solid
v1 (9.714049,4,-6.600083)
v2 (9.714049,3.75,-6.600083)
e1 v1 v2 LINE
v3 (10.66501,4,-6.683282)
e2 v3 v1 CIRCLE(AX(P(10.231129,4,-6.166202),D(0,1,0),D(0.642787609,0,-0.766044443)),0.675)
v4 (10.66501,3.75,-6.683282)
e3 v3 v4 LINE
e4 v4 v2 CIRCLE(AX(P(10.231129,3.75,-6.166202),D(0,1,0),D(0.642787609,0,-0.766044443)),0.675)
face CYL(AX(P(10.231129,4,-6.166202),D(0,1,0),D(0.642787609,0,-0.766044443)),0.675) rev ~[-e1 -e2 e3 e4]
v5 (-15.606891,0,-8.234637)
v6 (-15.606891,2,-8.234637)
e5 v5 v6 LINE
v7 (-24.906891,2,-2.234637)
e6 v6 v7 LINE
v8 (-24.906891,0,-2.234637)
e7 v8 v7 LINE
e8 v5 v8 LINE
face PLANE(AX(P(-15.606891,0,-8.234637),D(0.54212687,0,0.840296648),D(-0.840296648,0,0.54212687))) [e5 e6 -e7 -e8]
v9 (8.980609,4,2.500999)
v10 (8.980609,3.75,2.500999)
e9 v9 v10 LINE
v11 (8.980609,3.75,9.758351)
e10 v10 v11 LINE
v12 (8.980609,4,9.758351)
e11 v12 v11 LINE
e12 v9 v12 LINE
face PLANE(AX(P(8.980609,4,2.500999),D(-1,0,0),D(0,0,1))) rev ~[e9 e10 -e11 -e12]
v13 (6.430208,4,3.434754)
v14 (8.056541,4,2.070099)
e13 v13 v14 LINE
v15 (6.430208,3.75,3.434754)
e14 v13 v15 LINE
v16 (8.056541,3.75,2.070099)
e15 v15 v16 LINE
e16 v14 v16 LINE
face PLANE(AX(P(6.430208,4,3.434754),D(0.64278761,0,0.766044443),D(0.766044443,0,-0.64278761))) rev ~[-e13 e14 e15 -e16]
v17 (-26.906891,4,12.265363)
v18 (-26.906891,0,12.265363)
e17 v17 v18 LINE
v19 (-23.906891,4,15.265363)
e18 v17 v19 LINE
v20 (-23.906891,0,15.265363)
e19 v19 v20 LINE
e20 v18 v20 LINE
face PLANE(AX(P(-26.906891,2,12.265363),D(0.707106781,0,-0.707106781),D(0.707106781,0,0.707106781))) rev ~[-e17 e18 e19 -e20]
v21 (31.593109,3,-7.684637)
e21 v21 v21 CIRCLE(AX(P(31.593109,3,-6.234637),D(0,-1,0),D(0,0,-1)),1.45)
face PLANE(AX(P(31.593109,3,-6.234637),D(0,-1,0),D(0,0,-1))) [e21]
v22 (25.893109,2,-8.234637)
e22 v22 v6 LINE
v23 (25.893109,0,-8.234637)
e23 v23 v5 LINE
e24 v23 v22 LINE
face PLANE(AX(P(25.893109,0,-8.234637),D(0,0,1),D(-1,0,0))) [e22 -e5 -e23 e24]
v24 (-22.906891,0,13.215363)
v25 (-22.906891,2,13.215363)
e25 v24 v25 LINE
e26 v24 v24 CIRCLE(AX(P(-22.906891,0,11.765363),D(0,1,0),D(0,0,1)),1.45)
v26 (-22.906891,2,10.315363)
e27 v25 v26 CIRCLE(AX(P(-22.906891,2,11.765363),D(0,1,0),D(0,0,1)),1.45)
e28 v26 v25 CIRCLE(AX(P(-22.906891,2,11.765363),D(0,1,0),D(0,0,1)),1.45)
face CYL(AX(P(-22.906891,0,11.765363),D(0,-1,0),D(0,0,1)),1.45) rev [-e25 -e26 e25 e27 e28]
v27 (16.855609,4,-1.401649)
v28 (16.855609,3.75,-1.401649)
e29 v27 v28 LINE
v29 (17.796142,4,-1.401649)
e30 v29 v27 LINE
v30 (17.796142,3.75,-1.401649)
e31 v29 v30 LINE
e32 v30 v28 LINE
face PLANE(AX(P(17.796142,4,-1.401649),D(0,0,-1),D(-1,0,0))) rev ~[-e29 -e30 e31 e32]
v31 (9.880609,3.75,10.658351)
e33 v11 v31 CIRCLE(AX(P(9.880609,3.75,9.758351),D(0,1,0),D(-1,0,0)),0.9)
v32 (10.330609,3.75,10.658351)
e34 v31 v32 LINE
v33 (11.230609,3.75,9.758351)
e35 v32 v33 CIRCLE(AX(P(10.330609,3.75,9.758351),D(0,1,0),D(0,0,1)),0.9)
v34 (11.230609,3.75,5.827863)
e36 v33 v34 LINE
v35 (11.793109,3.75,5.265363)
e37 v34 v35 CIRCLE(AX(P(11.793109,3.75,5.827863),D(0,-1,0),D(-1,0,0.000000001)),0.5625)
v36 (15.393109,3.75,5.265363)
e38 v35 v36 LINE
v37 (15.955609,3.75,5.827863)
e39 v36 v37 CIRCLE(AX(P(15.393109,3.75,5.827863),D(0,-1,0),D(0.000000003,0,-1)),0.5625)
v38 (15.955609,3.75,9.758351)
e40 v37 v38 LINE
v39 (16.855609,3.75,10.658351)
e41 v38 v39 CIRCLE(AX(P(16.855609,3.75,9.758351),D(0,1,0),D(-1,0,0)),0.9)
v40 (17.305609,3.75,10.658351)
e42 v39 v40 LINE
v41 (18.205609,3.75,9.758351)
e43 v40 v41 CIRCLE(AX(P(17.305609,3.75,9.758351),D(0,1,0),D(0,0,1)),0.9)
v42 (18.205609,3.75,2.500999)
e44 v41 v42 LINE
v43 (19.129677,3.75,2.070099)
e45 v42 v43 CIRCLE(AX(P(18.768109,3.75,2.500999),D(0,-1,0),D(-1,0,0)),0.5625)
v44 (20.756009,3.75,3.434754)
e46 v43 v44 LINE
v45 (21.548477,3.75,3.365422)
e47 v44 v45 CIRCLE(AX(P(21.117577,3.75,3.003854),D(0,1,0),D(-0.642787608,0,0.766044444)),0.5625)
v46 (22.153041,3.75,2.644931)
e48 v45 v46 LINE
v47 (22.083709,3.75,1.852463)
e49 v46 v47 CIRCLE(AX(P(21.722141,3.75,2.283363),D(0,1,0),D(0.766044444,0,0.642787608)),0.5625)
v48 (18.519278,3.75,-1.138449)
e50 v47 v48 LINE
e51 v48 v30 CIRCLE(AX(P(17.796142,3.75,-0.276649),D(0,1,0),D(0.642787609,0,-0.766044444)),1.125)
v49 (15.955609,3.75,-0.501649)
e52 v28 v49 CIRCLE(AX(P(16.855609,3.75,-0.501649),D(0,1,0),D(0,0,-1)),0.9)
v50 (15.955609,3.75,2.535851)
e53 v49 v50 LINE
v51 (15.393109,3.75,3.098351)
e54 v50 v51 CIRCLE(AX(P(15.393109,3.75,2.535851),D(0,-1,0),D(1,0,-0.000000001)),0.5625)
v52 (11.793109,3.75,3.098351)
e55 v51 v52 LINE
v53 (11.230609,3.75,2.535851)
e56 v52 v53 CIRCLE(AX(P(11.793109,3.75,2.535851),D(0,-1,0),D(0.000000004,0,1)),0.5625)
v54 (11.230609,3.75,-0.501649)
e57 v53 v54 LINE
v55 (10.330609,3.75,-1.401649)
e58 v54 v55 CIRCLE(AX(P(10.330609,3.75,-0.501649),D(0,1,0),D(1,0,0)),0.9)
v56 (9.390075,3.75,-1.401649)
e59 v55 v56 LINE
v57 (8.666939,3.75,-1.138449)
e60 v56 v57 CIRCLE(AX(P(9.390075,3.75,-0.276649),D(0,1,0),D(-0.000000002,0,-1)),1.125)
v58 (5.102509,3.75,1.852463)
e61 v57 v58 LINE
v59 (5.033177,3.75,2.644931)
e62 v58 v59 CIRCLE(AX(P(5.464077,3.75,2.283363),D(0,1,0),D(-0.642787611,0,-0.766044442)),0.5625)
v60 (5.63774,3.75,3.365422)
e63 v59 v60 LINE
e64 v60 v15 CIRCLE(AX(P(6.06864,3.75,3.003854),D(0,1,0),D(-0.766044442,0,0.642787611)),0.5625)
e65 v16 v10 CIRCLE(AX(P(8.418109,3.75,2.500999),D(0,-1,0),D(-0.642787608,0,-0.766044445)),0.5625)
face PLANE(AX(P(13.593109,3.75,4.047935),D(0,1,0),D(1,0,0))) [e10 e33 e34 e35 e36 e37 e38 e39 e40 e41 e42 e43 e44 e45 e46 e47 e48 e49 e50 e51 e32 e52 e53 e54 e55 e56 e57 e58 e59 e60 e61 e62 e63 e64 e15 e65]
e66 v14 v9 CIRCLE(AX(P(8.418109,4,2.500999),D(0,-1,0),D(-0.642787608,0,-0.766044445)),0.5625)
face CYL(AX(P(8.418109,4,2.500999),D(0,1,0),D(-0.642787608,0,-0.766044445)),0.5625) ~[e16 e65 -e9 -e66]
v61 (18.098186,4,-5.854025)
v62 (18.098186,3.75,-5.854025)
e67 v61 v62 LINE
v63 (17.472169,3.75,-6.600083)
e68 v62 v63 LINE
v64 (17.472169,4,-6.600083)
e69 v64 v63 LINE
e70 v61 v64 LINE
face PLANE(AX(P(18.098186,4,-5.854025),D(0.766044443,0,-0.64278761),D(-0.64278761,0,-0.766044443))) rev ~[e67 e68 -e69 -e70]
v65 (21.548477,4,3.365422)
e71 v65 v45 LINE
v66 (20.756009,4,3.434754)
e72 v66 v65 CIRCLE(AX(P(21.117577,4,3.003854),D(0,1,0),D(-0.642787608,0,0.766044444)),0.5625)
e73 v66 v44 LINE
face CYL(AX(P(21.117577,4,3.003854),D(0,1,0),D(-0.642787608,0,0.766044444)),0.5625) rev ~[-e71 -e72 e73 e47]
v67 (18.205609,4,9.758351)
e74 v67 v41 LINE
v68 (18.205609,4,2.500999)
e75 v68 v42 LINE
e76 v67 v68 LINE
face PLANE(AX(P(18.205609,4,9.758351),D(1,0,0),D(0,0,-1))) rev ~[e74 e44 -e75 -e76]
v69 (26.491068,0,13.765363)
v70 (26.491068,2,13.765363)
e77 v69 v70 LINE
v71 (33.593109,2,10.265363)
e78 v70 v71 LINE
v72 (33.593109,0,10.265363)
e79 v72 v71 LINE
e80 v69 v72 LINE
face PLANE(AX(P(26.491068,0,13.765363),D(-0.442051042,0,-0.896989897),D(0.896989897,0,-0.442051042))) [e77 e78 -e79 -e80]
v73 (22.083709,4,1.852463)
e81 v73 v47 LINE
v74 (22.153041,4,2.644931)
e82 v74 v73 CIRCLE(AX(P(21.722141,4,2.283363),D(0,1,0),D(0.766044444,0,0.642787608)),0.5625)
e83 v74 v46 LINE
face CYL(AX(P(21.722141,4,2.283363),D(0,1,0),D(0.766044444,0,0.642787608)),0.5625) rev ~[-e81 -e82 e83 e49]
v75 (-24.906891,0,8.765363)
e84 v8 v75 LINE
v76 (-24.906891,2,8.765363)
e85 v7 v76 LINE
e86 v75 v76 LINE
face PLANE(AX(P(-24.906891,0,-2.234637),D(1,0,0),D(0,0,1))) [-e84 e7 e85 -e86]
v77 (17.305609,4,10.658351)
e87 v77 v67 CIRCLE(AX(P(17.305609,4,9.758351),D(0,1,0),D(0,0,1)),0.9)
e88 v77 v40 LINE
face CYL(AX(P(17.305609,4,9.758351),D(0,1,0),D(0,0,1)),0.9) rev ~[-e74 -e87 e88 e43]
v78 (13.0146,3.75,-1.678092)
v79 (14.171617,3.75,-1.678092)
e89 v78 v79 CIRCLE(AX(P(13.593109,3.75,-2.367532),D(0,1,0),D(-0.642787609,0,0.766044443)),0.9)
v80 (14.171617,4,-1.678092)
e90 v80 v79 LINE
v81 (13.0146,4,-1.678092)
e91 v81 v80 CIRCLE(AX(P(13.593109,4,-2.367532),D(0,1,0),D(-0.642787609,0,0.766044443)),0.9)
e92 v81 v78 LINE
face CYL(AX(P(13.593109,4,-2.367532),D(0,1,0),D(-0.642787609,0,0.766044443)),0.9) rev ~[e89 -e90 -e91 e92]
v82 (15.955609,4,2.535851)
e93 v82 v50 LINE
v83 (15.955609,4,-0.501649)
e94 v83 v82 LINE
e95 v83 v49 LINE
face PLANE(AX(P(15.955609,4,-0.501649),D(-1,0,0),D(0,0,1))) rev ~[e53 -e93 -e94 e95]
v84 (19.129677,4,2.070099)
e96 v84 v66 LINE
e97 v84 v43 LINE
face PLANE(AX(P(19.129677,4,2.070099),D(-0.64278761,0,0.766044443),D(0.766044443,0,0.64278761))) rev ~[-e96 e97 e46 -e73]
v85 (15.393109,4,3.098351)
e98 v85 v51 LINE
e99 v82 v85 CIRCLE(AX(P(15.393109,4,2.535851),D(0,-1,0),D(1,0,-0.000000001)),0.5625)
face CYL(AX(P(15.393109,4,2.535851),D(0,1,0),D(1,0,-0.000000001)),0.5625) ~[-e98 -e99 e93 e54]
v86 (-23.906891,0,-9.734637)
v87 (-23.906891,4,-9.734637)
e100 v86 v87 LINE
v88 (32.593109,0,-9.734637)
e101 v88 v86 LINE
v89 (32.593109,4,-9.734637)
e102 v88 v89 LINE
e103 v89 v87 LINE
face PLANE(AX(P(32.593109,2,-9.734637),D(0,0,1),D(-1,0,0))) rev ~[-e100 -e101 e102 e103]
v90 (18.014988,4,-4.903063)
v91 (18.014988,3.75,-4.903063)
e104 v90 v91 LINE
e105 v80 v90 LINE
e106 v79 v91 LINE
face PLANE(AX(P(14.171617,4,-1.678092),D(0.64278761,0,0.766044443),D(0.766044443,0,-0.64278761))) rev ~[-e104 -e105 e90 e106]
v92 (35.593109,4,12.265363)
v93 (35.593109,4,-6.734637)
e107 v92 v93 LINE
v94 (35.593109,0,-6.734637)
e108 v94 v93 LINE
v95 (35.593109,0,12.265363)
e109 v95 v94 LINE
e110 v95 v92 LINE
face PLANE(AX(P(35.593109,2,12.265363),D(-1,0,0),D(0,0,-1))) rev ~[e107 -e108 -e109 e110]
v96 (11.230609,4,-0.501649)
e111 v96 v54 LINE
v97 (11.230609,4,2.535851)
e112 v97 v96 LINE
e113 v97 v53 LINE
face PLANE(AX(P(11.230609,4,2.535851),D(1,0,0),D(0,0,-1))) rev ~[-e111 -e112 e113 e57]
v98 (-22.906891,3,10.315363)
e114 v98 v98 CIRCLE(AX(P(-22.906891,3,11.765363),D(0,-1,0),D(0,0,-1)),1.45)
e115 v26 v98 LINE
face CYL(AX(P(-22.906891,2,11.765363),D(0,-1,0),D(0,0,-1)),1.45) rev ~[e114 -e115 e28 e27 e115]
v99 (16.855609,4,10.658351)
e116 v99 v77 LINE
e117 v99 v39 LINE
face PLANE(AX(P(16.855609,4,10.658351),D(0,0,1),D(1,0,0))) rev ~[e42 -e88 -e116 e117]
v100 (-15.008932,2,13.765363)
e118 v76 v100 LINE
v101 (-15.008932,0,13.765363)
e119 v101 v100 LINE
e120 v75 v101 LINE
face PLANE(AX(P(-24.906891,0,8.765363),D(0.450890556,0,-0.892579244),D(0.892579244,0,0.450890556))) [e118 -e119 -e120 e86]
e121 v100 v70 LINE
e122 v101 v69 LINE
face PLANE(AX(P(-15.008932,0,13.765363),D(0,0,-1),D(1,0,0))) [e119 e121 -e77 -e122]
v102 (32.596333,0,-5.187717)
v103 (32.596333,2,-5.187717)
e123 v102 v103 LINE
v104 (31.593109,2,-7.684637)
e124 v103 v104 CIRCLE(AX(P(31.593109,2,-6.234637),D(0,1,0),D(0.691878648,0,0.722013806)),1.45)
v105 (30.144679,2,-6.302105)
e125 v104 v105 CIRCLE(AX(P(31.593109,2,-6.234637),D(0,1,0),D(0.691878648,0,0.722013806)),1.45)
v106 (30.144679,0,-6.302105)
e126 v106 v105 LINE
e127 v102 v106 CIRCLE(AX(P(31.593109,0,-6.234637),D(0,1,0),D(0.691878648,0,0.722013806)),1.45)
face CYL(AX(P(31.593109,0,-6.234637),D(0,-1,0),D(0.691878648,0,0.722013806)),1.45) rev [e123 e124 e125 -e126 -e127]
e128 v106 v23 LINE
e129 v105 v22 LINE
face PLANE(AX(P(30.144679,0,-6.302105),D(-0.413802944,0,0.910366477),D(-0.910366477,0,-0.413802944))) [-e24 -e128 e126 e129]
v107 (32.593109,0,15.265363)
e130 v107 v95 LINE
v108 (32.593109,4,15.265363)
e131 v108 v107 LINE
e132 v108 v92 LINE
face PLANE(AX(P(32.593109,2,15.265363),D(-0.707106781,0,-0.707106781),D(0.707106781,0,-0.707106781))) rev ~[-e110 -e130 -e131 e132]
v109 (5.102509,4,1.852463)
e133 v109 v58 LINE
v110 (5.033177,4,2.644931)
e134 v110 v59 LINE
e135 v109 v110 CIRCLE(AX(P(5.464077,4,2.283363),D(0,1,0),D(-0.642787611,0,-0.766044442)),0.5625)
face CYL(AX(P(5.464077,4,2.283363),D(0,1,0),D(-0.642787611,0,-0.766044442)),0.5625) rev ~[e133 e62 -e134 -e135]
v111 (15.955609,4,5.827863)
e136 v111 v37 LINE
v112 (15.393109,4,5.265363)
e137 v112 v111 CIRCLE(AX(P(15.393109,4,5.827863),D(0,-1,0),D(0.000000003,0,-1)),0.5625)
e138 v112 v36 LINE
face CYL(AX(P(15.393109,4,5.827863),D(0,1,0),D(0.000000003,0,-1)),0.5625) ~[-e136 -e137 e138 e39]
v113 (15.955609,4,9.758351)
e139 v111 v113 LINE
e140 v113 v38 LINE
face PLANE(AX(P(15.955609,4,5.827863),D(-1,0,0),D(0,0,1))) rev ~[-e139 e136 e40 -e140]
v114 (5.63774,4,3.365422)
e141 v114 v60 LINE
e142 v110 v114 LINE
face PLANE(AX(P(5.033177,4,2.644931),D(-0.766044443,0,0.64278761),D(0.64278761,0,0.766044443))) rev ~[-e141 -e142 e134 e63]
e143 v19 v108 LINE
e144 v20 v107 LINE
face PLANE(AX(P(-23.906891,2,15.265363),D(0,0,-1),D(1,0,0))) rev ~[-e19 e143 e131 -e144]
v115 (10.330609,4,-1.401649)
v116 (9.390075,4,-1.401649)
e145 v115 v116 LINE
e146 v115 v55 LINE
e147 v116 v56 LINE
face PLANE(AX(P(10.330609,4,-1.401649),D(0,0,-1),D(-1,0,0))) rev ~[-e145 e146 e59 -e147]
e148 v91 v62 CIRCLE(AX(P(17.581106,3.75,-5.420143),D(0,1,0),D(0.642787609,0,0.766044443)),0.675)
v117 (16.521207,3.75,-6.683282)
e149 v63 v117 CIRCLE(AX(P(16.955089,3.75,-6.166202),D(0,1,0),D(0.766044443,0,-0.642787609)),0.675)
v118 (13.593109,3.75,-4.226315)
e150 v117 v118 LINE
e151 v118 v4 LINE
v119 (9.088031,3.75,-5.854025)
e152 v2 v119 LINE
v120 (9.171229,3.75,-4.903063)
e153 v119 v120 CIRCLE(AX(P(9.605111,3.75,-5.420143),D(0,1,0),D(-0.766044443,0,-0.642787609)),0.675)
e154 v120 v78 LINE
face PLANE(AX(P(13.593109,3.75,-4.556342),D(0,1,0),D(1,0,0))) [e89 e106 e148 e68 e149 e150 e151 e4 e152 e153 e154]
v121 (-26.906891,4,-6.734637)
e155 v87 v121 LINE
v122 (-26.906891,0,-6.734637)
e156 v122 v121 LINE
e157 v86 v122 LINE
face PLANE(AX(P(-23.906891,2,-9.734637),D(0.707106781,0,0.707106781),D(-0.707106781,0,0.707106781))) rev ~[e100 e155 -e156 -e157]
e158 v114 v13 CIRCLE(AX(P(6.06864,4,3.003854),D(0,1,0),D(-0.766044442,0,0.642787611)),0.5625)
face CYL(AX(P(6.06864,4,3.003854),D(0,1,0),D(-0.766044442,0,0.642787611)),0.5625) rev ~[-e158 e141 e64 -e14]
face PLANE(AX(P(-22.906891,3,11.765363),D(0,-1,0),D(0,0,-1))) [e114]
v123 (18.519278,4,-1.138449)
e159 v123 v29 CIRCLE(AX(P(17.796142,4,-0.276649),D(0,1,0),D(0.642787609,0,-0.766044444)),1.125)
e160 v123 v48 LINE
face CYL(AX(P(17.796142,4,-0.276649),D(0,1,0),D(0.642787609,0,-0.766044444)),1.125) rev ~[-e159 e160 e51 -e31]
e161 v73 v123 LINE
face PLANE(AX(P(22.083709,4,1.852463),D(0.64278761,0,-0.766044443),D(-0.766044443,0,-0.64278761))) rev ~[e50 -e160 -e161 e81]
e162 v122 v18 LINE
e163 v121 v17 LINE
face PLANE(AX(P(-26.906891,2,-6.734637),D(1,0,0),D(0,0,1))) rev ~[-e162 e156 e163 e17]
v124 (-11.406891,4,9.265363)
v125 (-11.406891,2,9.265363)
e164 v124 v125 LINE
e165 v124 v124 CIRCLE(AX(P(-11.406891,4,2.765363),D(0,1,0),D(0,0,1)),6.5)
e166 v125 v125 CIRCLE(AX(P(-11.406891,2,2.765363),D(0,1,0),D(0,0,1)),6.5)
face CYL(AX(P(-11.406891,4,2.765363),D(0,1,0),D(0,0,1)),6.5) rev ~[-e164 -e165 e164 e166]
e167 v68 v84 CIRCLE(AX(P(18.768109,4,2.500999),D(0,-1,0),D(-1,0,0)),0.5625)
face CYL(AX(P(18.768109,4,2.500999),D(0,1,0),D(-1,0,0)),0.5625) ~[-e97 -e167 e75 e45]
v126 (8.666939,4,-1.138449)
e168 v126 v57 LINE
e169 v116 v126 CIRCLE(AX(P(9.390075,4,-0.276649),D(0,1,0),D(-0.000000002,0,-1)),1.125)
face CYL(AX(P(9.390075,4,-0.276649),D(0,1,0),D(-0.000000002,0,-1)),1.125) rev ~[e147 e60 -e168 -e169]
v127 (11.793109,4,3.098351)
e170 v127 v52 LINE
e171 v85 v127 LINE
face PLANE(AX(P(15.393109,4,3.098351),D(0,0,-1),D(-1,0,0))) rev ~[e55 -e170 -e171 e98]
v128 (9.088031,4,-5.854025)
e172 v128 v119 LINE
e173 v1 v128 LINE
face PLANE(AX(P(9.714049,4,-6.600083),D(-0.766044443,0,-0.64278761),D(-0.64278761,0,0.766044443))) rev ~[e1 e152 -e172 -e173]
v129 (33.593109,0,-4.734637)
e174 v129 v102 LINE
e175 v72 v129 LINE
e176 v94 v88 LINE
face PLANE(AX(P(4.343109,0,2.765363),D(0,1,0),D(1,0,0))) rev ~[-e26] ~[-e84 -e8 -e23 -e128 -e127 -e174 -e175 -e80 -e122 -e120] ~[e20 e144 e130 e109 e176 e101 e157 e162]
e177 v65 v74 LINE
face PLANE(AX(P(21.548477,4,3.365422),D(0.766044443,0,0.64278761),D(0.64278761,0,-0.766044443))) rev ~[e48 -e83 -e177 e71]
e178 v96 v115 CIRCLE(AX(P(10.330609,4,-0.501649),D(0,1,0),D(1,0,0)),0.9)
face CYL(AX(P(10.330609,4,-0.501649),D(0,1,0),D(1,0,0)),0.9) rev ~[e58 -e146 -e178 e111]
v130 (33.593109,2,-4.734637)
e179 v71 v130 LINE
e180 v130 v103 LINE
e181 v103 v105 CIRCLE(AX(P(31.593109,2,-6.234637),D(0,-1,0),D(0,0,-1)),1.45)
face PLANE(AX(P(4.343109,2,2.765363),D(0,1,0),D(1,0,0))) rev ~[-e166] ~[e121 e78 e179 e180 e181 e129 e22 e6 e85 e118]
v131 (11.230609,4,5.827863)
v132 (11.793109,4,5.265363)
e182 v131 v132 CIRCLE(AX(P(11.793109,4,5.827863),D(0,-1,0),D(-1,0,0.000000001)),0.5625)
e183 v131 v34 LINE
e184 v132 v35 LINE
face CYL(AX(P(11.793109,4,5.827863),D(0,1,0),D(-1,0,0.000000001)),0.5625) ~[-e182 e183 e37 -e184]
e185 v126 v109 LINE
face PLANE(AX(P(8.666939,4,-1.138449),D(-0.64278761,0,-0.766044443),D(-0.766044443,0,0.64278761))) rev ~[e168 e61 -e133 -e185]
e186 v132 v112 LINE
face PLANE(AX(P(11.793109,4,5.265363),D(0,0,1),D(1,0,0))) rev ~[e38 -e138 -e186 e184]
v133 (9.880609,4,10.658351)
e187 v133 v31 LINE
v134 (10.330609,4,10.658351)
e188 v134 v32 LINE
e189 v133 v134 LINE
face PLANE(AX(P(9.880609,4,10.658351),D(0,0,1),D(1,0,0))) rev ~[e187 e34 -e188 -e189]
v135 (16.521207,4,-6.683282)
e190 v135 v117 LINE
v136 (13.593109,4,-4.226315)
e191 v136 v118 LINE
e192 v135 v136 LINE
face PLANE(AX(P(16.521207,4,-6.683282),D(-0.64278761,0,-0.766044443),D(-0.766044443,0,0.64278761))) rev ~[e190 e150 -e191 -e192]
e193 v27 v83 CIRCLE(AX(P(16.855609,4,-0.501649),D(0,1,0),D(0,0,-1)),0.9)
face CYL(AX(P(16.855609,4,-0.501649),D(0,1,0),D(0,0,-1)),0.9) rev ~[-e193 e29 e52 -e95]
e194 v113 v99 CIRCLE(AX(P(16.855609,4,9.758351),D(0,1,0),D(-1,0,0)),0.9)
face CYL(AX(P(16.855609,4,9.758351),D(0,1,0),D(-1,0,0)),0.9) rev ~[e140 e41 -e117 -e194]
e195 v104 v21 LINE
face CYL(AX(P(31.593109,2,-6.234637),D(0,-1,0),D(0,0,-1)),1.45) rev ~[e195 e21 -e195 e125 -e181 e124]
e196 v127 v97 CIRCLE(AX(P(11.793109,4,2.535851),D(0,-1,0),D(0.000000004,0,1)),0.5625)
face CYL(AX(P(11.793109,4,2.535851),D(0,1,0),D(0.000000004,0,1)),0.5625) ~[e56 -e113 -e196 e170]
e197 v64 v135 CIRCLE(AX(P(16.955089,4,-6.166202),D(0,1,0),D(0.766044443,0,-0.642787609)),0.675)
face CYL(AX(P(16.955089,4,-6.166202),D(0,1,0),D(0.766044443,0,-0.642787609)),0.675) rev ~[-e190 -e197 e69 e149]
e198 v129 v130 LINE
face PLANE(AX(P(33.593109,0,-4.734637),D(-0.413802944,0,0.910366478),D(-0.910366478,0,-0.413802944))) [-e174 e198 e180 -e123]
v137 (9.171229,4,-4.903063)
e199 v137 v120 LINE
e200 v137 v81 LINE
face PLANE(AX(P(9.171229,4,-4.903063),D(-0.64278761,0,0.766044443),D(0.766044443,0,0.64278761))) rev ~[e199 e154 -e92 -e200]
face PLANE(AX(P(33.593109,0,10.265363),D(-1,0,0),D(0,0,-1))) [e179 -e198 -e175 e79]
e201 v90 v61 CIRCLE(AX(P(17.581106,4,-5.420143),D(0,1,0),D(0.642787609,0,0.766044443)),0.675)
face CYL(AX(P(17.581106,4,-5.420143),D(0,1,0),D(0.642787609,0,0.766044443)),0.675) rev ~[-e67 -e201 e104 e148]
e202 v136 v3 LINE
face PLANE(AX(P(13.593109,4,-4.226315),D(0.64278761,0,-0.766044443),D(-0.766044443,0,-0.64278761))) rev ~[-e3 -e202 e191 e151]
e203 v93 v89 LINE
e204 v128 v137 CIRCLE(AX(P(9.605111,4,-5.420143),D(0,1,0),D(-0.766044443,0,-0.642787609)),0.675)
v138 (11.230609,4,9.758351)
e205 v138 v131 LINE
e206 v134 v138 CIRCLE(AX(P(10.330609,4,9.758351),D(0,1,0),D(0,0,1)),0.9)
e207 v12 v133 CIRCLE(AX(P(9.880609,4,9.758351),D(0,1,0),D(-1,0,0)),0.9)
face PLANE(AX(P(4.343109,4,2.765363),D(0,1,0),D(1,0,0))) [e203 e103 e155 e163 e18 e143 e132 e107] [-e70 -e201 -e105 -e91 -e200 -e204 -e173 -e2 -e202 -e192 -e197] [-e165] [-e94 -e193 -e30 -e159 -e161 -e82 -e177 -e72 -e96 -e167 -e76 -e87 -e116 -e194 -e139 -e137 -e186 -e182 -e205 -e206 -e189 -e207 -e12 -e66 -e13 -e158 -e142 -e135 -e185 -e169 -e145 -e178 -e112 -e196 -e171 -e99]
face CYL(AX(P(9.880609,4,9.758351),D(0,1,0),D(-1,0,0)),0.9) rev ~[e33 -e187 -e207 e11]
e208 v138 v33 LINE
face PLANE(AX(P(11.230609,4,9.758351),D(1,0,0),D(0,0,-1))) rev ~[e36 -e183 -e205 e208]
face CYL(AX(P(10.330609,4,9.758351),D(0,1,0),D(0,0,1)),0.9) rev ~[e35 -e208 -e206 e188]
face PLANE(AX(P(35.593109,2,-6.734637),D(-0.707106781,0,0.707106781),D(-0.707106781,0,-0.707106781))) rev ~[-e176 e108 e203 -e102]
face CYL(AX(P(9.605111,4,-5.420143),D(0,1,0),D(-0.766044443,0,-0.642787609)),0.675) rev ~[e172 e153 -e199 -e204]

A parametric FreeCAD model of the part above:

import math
import FreeCAD as App
import Part
import Sketcher
Q = App.Units.Quantity


def add_polygon(sketch, points):
    """Adds a closed chain of lines whose ends are joined by coincident constraints."""
    first, n = sketch.GeometryCount, len(points)
    for a, b in zip(points, points[1:] + points[:1]):
        sketch.addGeometry(Part.LineSegment(App.Vector(*a, 0), App.Vector(*b, 0)), False)
    for i in range(n):
        sketch.addConstraint(Sketcher.Constraint("Coincident", first + i, 2, first + (i + 1) % n, 1))

doc = App.newDocument("Part")
params = doc.addObject("Spreadsheet::Sheet", "Params")
for row, (alias, value) in enumerate([
    ("sketch1_diameter", "2.9 mm"),
    ("sketch1_height", "19 mm"),
    ("sketch1_height2", "15 mm"),
    ("sketch1_height3", "11 mm"),
    ("sketch1_width", "56.5 mm"),
    ("pad1_length", "2 mm"),
    ("sketch2_height", "19 mm"),
    ("sketch2_width", "56.5 mm"),
    ("pad2_length", "2 mm"),
    ("sketch3_diameter", "13 mm"),
    ("pocket1_length", "2 mm"),
    ("sketch4_diameter", "2.9 mm"),
    ("pocket2_length", "1 mm"),
    ("sketch5_radius", "0.9 mm"),
    ("sketch5_width", "3.6 mm"),
    ("sketch5_width2", "0.45 mm"),
    ("pocket3_length", "0.25 mm"),
], start=1):
    params.set(f"A{row}", alias)
    params.set(f"B{row}", "=" + value)
    params.setAlias(f"B{row}", alias)

body = doc.addObject("PartDesign::Body", "Body")

# Sketch on XZ plane
sketch1 = body.newObject("Sketcher::SketchObject", "Sketch")
sketch1.AttachmentSupport = (doc.getObject("XZ_Plane"), [""])
sketch1.MapMode = "FlatFace"
add_polygon(sketch1, [(35.6, 12.3), (35.6, -6.7), (32.6, -9.7), (-23.9, -9.7), (-26.9, -6.7), (-26.9, 12.3), (-23.9, 15.3), (32.6, 15.3)])  # lines 0-7
sketch1.addGeometry(Part.Circle(App.Vector(-22.9, 11.8, 0), App.Vector(0, 0, 1), 1.4), False)  # 8
sketch1.addGeometry(Part.LineSegment(App.Vector(-15.6, -8.2, 0), App.Vector(25.9, -8.2, 0)), False)  # 9
sketch1.addGeometry(Part.LineSegment(App.Vector(25.9, -8.2, 0), App.Vector(30.1, -6.3, 0)), False)  # 10
sketch1.addGeometry(Part.ArcOfCircle(Part.Circle(App.Vector(31.6, -6.2, 0), App.Vector(0, 0, 1), 1.4), math.radians(-177), math.radians(46)), False)  # 11
sketch1.addGeometry(Part.LineSegment(App.Vector(32.6, -5.2, 0), App.Vector(33.6, -4.7, 0)), False)  # 12
sketch1.addGeometry(Part.LineSegment(App.Vector(33.6, -4.7, 0), App.Vector(33.6, 10.3, 0)), False)  # 13
sketch1.addGeometry(Part.LineSegment(App.Vector(33.6, 10.3, 0), App.Vector(26.5, 13.8, 0)), False)  # 14
sketch1.addGeometry(Part.LineSegment(App.Vector(26.5, 13.8, 0), App.Vector(-15, 13.8, 0)), False)  # 15
sketch1.addGeometry(Part.LineSegment(App.Vector(-15, 13.8, 0), App.Vector(-24.9, 8.8, 0)), False)  # 16
sketch1.addGeometry(Part.LineSegment(App.Vector(-24.9, 8.8, 0), App.Vector(-24.9, -2.2, 0)), False)  # 17
sketch1.addGeometry(Part.LineSegment(App.Vector(-24.9, -2.2, 0), App.Vector(-15.6, -8.2, 0)), False)  # 18
sketch1.addConstraint([
    Sketcher.Constraint("Coincident", 9, 2, 10, 1),
    Sketcher.Constraint("Coincident", 10, 2, 11, 1),
    Sketcher.Constraint("Coincident", 11, 2, 12, 1),
    Sketcher.Constraint("Coincident", 12, 2, 13, 1),
    Sketcher.Constraint("Coincident", 13, 2, 14, 1),
    Sketcher.Constraint("Coincident", 14, 2, 15, 1),
    Sketcher.Constraint("Coincident", 15, 2, 16, 1),
    Sketcher.Constraint("Coincident", 16, 2, 17, 1),
    Sketcher.Constraint("Coincident", 17, 2, 18, 1),
    Sketcher.Constraint("Coincident", 18, 2, 9, 1),
    Sketcher.Constraint("Vertical", 0),
    Sketcher.Constraint("Horizontal", 2),
    Sketcher.Constraint("Vertical", 4),
    Sketcher.Constraint("Horizontal", 6),
    Sketcher.Constraint("Horizontal", 9),
    Sketcher.Constraint("Vertical", 13),
    Sketcher.Constraint("Horizontal", 15),
    Sketcher.Constraint("Vertical", 17),
    Sketcher.Constraint("Equal", 8, 11),
    Sketcher.Constraint("Perpendicular", 1, 3),
    Sketcher.Constraint("Perpendicular", 3, 5),
    Sketcher.Constraint("Perpendicular", 5, 7),
    Sketcher.Constraint("Parallel", 10, 12),
    Sketcher.Constraint("Horizontal", 0, 2, 3, 2),
    Sketcher.Constraint("Horizontal", 4, 2, 7, 2),
    Sketcher.Constraint("Vertical", 2, 2, 5, 2),
    Sketcher.Constraint("Vertical", 1, 2, 6, 2),
    Sketcher.Constraint("Equal", 9, 15),
    Sketcher.Constraint("Diameter", 8, 2.9),
    Sketcher.Constraint("DistanceY", 0, 2, 0, 1, 19.0),
    Sketcher.Constraint("DistanceY", 13, 1, 13, 2, 15.0),
    Sketcher.Constraint("DistanceY", 17, 2, 17, 1, 11.0),
    Sketcher.Constraint("DistanceX", 2, 2, 2, 1, 56.5),
    Sketcher.Constraint("DistanceX", 9, 1, 9, 2, 41.5),
    Sketcher.Constraint("DistanceY", 11, 3, 8, 3, 18.0),
    Sketcher.Constraint("DistanceX", 11, 3, 0, 2, 4.0),
    Sketcher.Constraint("DistanceX", 11, 3, 1, 2, 1.0),
    Sketcher.Constraint("DistanceX", 2, 2, 8, 3, 1.0),
    Sketcher.Constraint("DistanceY", 9, 2, 11, 3, 2.0),
    Sketcher.Constraint("DistanceX", 11, 3, 12, 2, 2.0),
    Sketcher.Constraint("DistanceY", 0, 2, 12, 2, 2.0),
    Sketcher.Constraint("DistanceY", 8, 3, 15, 2, 2.0),
    Sketcher.Constraint("DistanceX", 16, 2, 8, 3, 2.0),
    Sketcher.Constraint("DistanceY", 16, 2, 8, 3, 3.0),
    Sketcher.Constraint("DistanceY", 0, 2, 11, 3, 0.5),
    Sketcher.Constraint("DistanceX", 9, 2, 11, 3, 5.7),
    Sketcher.Constraint("DistanceX", 8, 3, -1, 1, 22.906891),
    Sketcher.Constraint("DistanceX", -1, 1, 10, 2, 30.144679),
    Sketcher.Constraint("DistanceX", 14, 2, 6, 2, 6.102041),
    Sketcher.Constraint("DistanceY", -1, 1, 8, 3, 11.765363),
])
sketch1.setExpression("Constraints[36]", "Params.sketch1_diameter")
sketch1.setExpression("Constraints[37]", "Params.sketch1_height")
sketch1.setExpression("Constraints[38]", "Params.sketch1_height2")
sketch1.setExpression("Constraints[39]", "Params.sketch1_height3")
sketch1.setExpression("Constraints[40]", "Params.sketch1_width")
pad1 = body.newObject("PartDesign::Pad", "Pad")
pad1.Profile = sketch1
pad1.setExpression("Length", "Params.pad1_length")
pad1.Reversed = True

# Sketch on XZ plane
sketch2 = body.newObject("Sketcher::SketchObject", "Sketch001")
sketch2.AttachmentSupport = (doc.getObject("XZ_Plane"), [""])
sketch2.MapMode = "FlatFace"
sketch2.AttachmentOffset = App.Placement(App.Vector(0, 0, -2), App.Rotation())
add_polygon(sketch2, [(32.6, 15.3), (35.6, 12.3), (35.6, -6.7), (32.6, -9.7), (-23.9, -9.7), (-26.9, -6.7), (-26.9, 12.3), (-23.9, 15.3)])  # lines 0-7
sketch2.addConstraint([
    Sketcher.Constraint("Vertical", 1),
    Sketcher.Constraint("Horizontal", 3),
    Sketcher.Constraint("Vertical", 5),
    Sketcher.Constraint("Horizontal", 7),
    Sketcher.Constraint("Perpendicular", 0, 2),
    Sketcher.Constraint("Perpendicular", 2, 4),
    Sketcher.Constraint("Perpendicular", 4, 6),
    Sketcher.Constraint("Horizontal", 1, 2, 4, 2),
    Sketcher.Constraint("Horizontal", 0, 2, 5, 2),
    Sketcher.Constraint("Vertical", 3, 2, 6, 2),
    Sketcher.Constraint("Vertical", 2, 2, 7, 2),
    Sketcher.Constraint("DistanceY", 1, 2, 1, 1, 19.0),
    Sketcher.Constraint("DistanceX", 3, 2, 3, 1, 56.5),
    Sketcher.Constraint("DistanceX", 2, 2, 1, 2, 3.0),
    Sketcher.Constraint("DistanceX", -1, 1, 0, 2, 35.593109),
    Sketcher.Constraint("DistanceY", -1, 1, 0, 2, 12.265363),
])
sketch2.setExpression("Constraints[19]", "Params.sketch2_height")
sketch2.setExpression("Constraints[20]", "Params.sketch2_width")
pad2 = body.newObject("PartDesign::Pad", "Pad001")
pad2.Profile = sketch2
pad2.setExpression("Length", "Params.pad2_length")
pad2.Reversed = True

# Sketch on XZ plane
sketch3 = body.newObject("Sketcher::SketchObject", "Sketch002")
sketch3.AttachmentSupport = (doc.getObject("XZ_Plane"), [""])
sketch3.MapMode = "FlatFace"
sketch3.AttachmentOffset = App.Placement(App.Vector(0, 0, -4), App.Rotation())
sketch3.addGeometry(Part.Circle(App.Vector(-11, 3, 0), App.Vector(0, 0, 1), 6), False)
sketch3.addConstraint([
    Sketcher.Constraint("Diameter", 0, 13.0),
    Sketcher.Constraint("DistanceX", 0, 3, -1, 1, 11.406891),
    Sketcher.Constraint("DistanceY", -1, 1, 0, 3, 2.765363),
])
sketch3.setExpression("Constraints[0]", "Params.sketch3_diameter")
pocket1 = body.newObject("PartDesign::Pocket", "Pocket")
pocket1.Profile = sketch3
pocket1.setExpression("Length", "Params.pocket1_length")
pocket1.Reversed = True

# Sketch on XZ plane
sketch4 = body.newObject("Sketcher::SketchObject", "Sketch003")
sketch4.AttachmentSupport = (doc.getObject("XZ_Plane"), [""])
sketch4.MapMode = "FlatFace"
sketch4.AttachmentOffset = App.Placement(App.Vector(0, 0, -2), App.Rotation())
sketch4.addGeometry([
    Part.Circle(App.Vector(31.6, -6.2, 0), App.Vector(0, 0, 1), 1.4),
    Part.Circle(App.Vector(-22.9, 11.8, 0), App.Vector(0, 0, 1), 1.4),
], False)
sketch4.addConstraint([
    Sketcher.Constraint("Equal", 0, 1),
    Sketcher.Constraint("Diameter", 0, 2.9),
    Sketcher.Constraint("DistanceY", 0, 3, 1, 3, 18.0),
    Sketcher.Constraint("DistanceX", 1, 3, 0, 3, 54.5),
    Sketcher.Constraint("DistanceX", -1, 1, 0, 3, 31.593109),
    Sketcher.Constraint("DistanceY", 0, 3, -1, 1, 6.234637),
])
sketch4.setExpression("Constraints[1]", "Params.sketch4_diameter")
pocket2 = body.newObject("PartDesign::Pocket", "Pocket001")
pocket2.Profile = sketch4
pocket2.setExpression("Length", "Params.pocket2_length")

# Sketch on XZ plane
sketch5 = body.newObject("Sketcher::SketchObject", "Sketch004")
sketch5.AttachmentSupport = (doc.getObject("XZ_Plane"), [""])
sketch5.MapMode = "FlatFace"
sketch5.AttachmentOffset = App.Placement(App.Vector(0, 0, -4), App.Rotation())
sketch5.addGeometry([
    Part.LineSegment(App.Vector(8.98, 2.5, 0), App.Vector(8.98, 9.76, 0)),  # 0
    Part.ArcOfCircle(Part.Circle(App.Vector(9.88, 9.76, 0), App.Vector(0, 0, 1), 0.9), math.radians(90), math.radians(180)),  # 1
    Part.LineSegment(App.Vector(9.88, 10.66, 0), App.Vector(10.33, 10.66, 0)),  # 2
    Part.ArcOfCircle(Part.Circle(App.Vector(10.33, 9.76, 0), App.Vector(0, 0, 1), 0.9), math.radians(0), math.radians(90)),  # 3
    Part.LineSegment(App.Vector(11.23, 9.76, 0), App.Vector(11.23, 5.83, 0)),  # 4
    Part.ArcOfCircle(Part.Circle(App.Vector(11.79, 5.83, 0), App.Vector(0, 0, 1), 0.56), math.radians(180), math.radians(270)),  # 5
    Part.LineSegment(App.Vector(11.79, 5.27, 0), App.Vector(15.39, 5.27, 0)),  # 6
    Part.ArcOfCircle(Part.Circle(App.Vector(15.39, 5.83, 0), App.Vector(0, 0, 1), 0.56), math.radians(-90), math.radians(0)),  # 7
    Part.LineSegment(App.Vector(15.96, 5.83, 0), App.Vector(15.96, 9.76, 0)),  # 8
    Part.ArcOfCircle(Part.Circle(App.Vector(16.86, 9.76, 0), App.Vector(0, 0, 1), 0.9), math.radians(90), math.radians(180)),  # 9
    Part.LineSegment(App.Vector(16.86, 10.66, 0), App.Vector(17.31, 10.66, 0)),  # 10
    Part.ArcOfCircle(Part.Circle(App.Vector(17.31, 9.76, 0), App.Vector(0, 0, 1), 0.9), math.radians(0), math.radians(90)),  # 11
    Part.LineSegment(App.Vector(18.21, 9.76, 0), App.Vector(18.21, 2.5, 0)),  # 12
    Part.ArcOfCircle(Part.Circle(App.Vector(18.77, 2.5, 0), App.Vector(0, 0, 1), 0.56), math.radians(180), math.radians(310)),  # 13
    Part.LineSegment(App.Vector(19.13, 2.07, 0), App.Vector(20.76, 3.43, 0)),  # 14
    Part.ArcOfCircle(Part.Circle(App.Vector(21.12, 3, 0), App.Vector(0, 0, 1), 0.56), math.radians(40), math.radians(130)),  # 15
    Part.LineSegment(App.Vector(21.55, 3.37, 0), App.Vector(22.15, 2.64, 0)),  # 16
    Part.ArcOfCircle(Part.Circle(App.Vector(21.72, 2.28, 0), App.Vector(0, 0, 1), 0.56), math.radians(-50), math.radians(40)),  # 17
    Part.LineSegment(App.Vector(22.08, 1.85, 0), App.Vector(18.52, -1.14, 0)),  # 18
    Part.ArcOfCircle(Part.Circle(App.Vector(17.8, -0.28, 0), App.Vector(0, 0, 1), 1.13), math.radians(-90), math.radians(-50)),  # 19
    Part.LineSegment(App.Vector(17.8, -1.4, 0), App.Vector(16.86, -1.4, 0)),  # 20
    Part.ArcOfCircle(Part.Circle(App.Vector(16.86, -0.5, 0), App.Vector(0, 0, 1), 0.9), math.radians(180), math.radians(270)),  # 21
    Part.LineSegment(App.Vector(15.96, -0.5, 0), App.Vector(15.96, 2.54, 0)),  # 22
    Part.ArcOfCircle(Part.Circle(App.Vector(15.39, 2.54, 0), App.Vector(0, 0, 1), 0.56), math.radians(0), math.radians(90)),  # 23
    Part.LineSegment(App.Vector(15.39, 3.1, 0), App.Vector(11.79, 3.1, 0)),  # 24
    Part.ArcOfCircle(Part.Circle(App.Vector(11.79, 2.54, 0), App.Vector(0, 0, 1), 0.56), math.radians(90), math.radians(180)),  # 25
    Part.LineSegment(App.Vector(11.23, 2.54, 0), App.Vector(11.23, -0.5, 0)),  # 26
    Part.ArcOfCircle(Part.Circle(App.Vector(10.33, -0.5, 0), App.Vector(0, 0, 1), 0.9), math.radians(-90), math.radians(0)),  # 27
    Part.LineSegment(App.Vector(10.33, -1.4, 0), App.Vector(9.39, -1.4, 0)),  # 28
    Part.ArcOfCircle(Part.Circle(App.Vector(9.39, -0.28, 0), App.Vector(0, 0, 1), 1.13), math.radians(-130), math.radians(-90)),  # 29
    Part.LineSegment(App.Vector(8.67, -1.14, 0), App.Vector(5.1, 1.85, 0)),  # 30
    Part.ArcOfCircle(Part.Circle(App.Vector(5.46, 2.28, 0), App.Vector(0, 0, 1), 0.56), math.radians(140), math.radians(230)),  # 31
    Part.LineSegment(App.Vector(5.03, 2.64, 0), App.Vector(5.64, 3.37, 0)),  # 32
    Part.ArcOfCircle(Part.Circle(App.Vector(6.07, 3, 0), App.Vector(0, 0, 1), 0.56), math.radians(50), math.radians(140)),  # 33
    Part.LineSegment(App.Vector(6.43, 3.43, 0), App.Vector(8.06, 2.07, 0)),  # 34
    Part.ArcOfCircle(Part.Circle(App.Vector(8.42, 2.5, 0), App.Vector(0, 0, 1), 0.56), math.radians(-130), math.radians(0)),  # 35
    Part.LineSegment(App.Vector(13.59, -4.23, 0), App.Vector(10.67, -6.68, 0)),  # 36
    Part.ArcOfCircle(Part.Circle(App.Vector(10.23, -6.17, 0), App.Vector(0, 0, 1), 0.68), math.radians(-140), math.radians(-50)),  # 37
    Part.LineSegment(App.Vector(9.71, -6.6, 0), App.Vector(9.09, -5.85, 0)),  # 38
    Part.ArcOfCircle(Part.Circle(App.Vector(9.61, -5.42, 0), App.Vector(0, 0, 1), 0.68), math.radians(130), math.radians(220)),  # 39
    Part.LineSegment(App.Vector(9.17, -4.9, 0), App.Vector(13.01, -1.68, 0)),  # 40
    Part.ArcOfCircle(Part.Circle(App.Vector(13.59, -2.37, 0), App.Vector(0, 0, 1), 0.9), math.radians(50), math.radians(130)),  # 41
    Part.LineSegment(App.Vector(14.17, -1.68, 0), App.Vector(18.01, -4.9, 0)),  # 42
    Part.ArcOfCircle(Part.Circle(App.Vector(17.58, -5.42, 0), App.Vector(0, 0, 1), 0.68), math.radians(-40), math.radians(50)),  # 43
    Part.LineSegment(App.Vector(18.1, -5.85, 0), App.Vector(17.47, -6.6, 0)),  # 44
    Part.ArcOfCircle(Part.Circle(App.Vector(16.96, -6.17, 0), App.Vector(0, 0, 1), 0.68), math.radians(-130), math.radians(-40)),  # 45
    Part.LineSegment(App.Vector(16.52, -6.68, 0), App.Vector(13.59, -4.23, 0)),  # 46
], False)
sketch5.addConstraint([
    Sketcher.Constraint("Tangent", 0, 2, 1, 2),
    Sketcher.Constraint("Tangent", 1, 1, 2, 1),
    Sketcher.Constraint("Tangent", 2, 2, 3, 2),
    Sketcher.Constraint("Tangent", 3, 1, 4, 1),
    Sketcher.Constraint("Tangent", 4, 2, 5, 1),
    Sketcher.Constraint("Tangent", 5, 2, 6, 1),
    Sketcher.Constraint("Tangent", 6, 2, 7, 1),
    Sketcher.Constraint("Tangent", 7, 2, 8, 1),
    Sketcher.Constraint("Tangent", 8, 2, 9, 2),
    Sketcher.Constraint("Tangent", 9, 1, 10, 1),
    Sketcher.Constraint("Tangent", 10, 2, 11, 2),
    Sketcher.Constraint("Tangent", 11, 1, 12, 1),
    Sketcher.Constraint("Tangent", 12, 2, 13, 1),
    Sketcher.Constraint("Tangent", 13, 2, 14, 1),
    Sketcher.Constraint("Tangent", 14, 2, 15, 2),
    Sketcher.Constraint("Tangent", 15, 1, 16, 1),
    Sketcher.Constraint("Tangent", 16, 2, 17, 2),
    Sketcher.Constraint("Tangent", 17, 1, 18, 1),
    Sketcher.Constraint("Tangent", 18, 2, 19, 2),
    Sketcher.Constraint("Tangent", 19, 1, 20, 1),
    Sketcher.Constraint("Tangent", 20, 2, 21, 2),
    Sketcher.Constraint("Tangent", 21, 1, 22, 1),
    Sketcher.Constraint("Tangent", 22, 2, 23, 1),
    Sketcher.Constraint("Tangent", 23, 2, 24, 1),
    Sketcher.Constraint("Tangent", 24, 2, 25, 1),
    Sketcher.Constraint("Tangent", 25, 2, 26, 1),
    Sketcher.Constraint("Tangent", 26, 2, 27, 2),
    Sketcher.Constraint("Tangent", 27, 1, 28, 1),
    Sketcher.Constraint("Tangent", 28, 2, 29, 2),
    Sketcher.Constraint("Tangent", 29, 1, 30, 1),
    Sketcher.Constraint("Tangent", 30, 2, 31, 2),
    Sketcher.Constraint("Tangent", 31, 1, 32, 1),
    Sketcher.Constraint("Tangent", 32, 2, 33, 2),
    Sketcher.Constraint("Tangent", 33, 1, 34, 1),
    Sketcher.Constraint("Tangent", 34, 2, 35, 1),
    Sketcher.Constraint("Tangent", 35, 2, 0, 1),
    Sketcher.Constraint("Tangent", 36, 2, 37, 2),
    Sketcher.Constraint("Tangent", 37, 1, 38, 1),
    Sketcher.Constraint("Tangent", 38, 2, 39, 2),
    Sketcher.Constraint("Tangent", 39, 1, 40, 1),
    Sketcher.Constraint("Tangent", 40, 2, 41, 2),
    Sketcher.Constraint("Tangent", 41, 1, 42, 1),
    Sketcher.Constraint("Tangent", 42, 2, 43, 2),
    Sketcher.Constraint("Tangent", 43, 1, 44, 1),
    Sketcher.Constraint("Tangent", 44, 2, 45, 2),
    Sketcher.Constraint("Tangent", 45, 1, 46, 1),
    Sketcher.Constraint("Coincident", 46, 2, 36, 1),
    Sketcher.Constraint("Vertical", 0),
    Sketcher.Constraint("Horizontal", 2),
    Sketcher.Constraint("Vertical", 4),
    Sketcher.Constraint("Horizontal", 6),
    Sketcher.Constraint("Vertical", 8),
    Sketcher.Constraint("Horizontal", 10),
    Sketcher.Constraint("Vertical", 12),
    Sketcher.Constraint("Horizontal", 20),
    Sketcher.Constraint("Vertical", 22),
    Sketcher.Constraint("Horizontal", 24),
    Sketcher.Constraint("Vertical", 26),
    Sketcher.Constraint("Horizontal", 28),
    Sketcher.Constraint("Equal", 1, 3),
    Sketcher.Constraint("Equal", 5, 7),
    Sketcher.Constraint("Equal", 3, 9),
    Sketcher.Constraint("Equal", 9, 11),
    Sketcher.Constraint("Equal", 7, 13),
    Sketcher.Constraint("Equal", 13, 15),
    Sketcher.Constraint("Equal", 15, 17),
    Sketcher.Constraint("Equal", 11, 21),
    Sketcher.Constraint("Equal", 17, 23),
    Sketcher.Constraint("Equal", 23, 25),
    Sketcher.Constraint("Equal", 21, 27),
    Sketcher.Constraint("Equal", 19, 29),
    Sketcher.Constraint("Equal", 25, 31),
    Sketcher.Constraint("Equal", 31, 33),
    Sketcher.Constraint("Equal", 33, 35),
    Sketcher.Constraint("Equal", 37, 39),
    Sketcher.Constraint("Equal", 27, 41),
    Sketcher.Constraint("Equal", 39, 43),
    Sketcher.Constraint("Equal", 43, 45),
    Sketcher.Constraint("Perpendicular", 14, 16),
    Sketcher.Constraint("Perpendicular", 16, 18),
    Sketcher.Constraint("Perpendicular", 30, 32),
    Sketcher.Constraint("Perpendicular", 32, 34),
    Sketcher.Constraint("Parallel", 18, 36),
    Sketcher.Constraint("Perpendicular", 36, 38),
    Sketcher.Constraint("Perpendicular", 38, 40),
    Sketcher.Constraint("Parallel", 34, 42),
    Sketcher.Constraint("Perpendicular", 42, 44),
    Sketcher.Constraint("Perpendicular", 44, 46),
    Sketcher.Constraint("Horizontal", 3, 3, 9, 3),
    Sketcher.Constraint("Horizontal", 21, 3, 27, 3),
    Sketcher.Constraint("Horizontal", 17, 3, 31, 3),
    Sketcher.Constraint("Horizontal", 15, 3, 33, 3),
    Sketcher.Constraint("Horizontal", 13, 3, 35, 3),
    Sketcher.Constraint("Horizontal", 39, 3, 43, 3),
    Sketcher.Constraint("Horizontal", 37, 3, 45, 3),
    Sketcher.Constraint("Horizontal", 18, 2, 29, 1),
    Sketcher.Constraint("Vertical", 9, 3, 21, 3),
    Sketcher.Constraint("Vertical", 5, 3, 25, 3),
    Sketcher.Constraint("Equal", 2, 10),
    Sketcher.Constraint("Radius", 1, 0.9),
    Sketcher.Constraint("Angle", 14, Q("40 deg")),
    Sketcher.Constraint("DistanceX", 6, 1, 6, 2, 3.6),
    Sketcher.Constraint("Radius", 19, 1.125),
    Sketcher.Constraint("Radius", 37, 0.675),
    Sketcher.Constraint("DistanceX", 2, 1, 2, 2, 0.45),
    Sketcher.Constraint("Radius", 5, 0.5625),
    Sketcher.Constraint("DistanceY", 22, 1, 22, 2, 3.0375),
    Sketcher.Constraint("DistanceY", -1, 1, 13, 3, 2.500999),
    Sketcher.Constraint("DistanceY", 4, 2, 4, 1, 3.930489),
    Sketcher.Constraint("DistanceY", 37, 3, -1, 1, 6.166202),
    Sketcher.Constraint("DistanceX", -1, 1, 40, 2, 13.0146),
    Sketcher.Constraint("Distance", 36, 3.822361),
    Sketcher.Constraint("Distance", 38, 0.97391),
    Sketcher.Constraint("DistanceX", 20, 2, 20, 1, 0.940533),
    Sketcher.Constraint("DistanceY", 0, 1, 0, 2, 7.257352),
    Sketcher.Constraint("DistanceX", -1, 1, 1, 3, 9.880609),
    Sketcher.Constraint("DistanceX", -1, 1, 17, 3, 21.722141),
    Sketcher.Constraint("DistanceY", 19, 3, -1, 1, 0.276649),
])
sketch5.setExpression("Constraints[99]", "Params.sketch5_radius")
sketch5.setExpression("Constraints[101]", "Params.sketch5_width")
sketch5.setExpression("Constraints[104]", "Params.sketch5_width2")
pocket3 = body.newObject("PartDesign::Pocket", "Pocket002")
pocket3.Profile = sketch5
pocket3.setExpression("Length", "Params.pocket3_length")
pocket3.Reversed = True

doc.recompute()
